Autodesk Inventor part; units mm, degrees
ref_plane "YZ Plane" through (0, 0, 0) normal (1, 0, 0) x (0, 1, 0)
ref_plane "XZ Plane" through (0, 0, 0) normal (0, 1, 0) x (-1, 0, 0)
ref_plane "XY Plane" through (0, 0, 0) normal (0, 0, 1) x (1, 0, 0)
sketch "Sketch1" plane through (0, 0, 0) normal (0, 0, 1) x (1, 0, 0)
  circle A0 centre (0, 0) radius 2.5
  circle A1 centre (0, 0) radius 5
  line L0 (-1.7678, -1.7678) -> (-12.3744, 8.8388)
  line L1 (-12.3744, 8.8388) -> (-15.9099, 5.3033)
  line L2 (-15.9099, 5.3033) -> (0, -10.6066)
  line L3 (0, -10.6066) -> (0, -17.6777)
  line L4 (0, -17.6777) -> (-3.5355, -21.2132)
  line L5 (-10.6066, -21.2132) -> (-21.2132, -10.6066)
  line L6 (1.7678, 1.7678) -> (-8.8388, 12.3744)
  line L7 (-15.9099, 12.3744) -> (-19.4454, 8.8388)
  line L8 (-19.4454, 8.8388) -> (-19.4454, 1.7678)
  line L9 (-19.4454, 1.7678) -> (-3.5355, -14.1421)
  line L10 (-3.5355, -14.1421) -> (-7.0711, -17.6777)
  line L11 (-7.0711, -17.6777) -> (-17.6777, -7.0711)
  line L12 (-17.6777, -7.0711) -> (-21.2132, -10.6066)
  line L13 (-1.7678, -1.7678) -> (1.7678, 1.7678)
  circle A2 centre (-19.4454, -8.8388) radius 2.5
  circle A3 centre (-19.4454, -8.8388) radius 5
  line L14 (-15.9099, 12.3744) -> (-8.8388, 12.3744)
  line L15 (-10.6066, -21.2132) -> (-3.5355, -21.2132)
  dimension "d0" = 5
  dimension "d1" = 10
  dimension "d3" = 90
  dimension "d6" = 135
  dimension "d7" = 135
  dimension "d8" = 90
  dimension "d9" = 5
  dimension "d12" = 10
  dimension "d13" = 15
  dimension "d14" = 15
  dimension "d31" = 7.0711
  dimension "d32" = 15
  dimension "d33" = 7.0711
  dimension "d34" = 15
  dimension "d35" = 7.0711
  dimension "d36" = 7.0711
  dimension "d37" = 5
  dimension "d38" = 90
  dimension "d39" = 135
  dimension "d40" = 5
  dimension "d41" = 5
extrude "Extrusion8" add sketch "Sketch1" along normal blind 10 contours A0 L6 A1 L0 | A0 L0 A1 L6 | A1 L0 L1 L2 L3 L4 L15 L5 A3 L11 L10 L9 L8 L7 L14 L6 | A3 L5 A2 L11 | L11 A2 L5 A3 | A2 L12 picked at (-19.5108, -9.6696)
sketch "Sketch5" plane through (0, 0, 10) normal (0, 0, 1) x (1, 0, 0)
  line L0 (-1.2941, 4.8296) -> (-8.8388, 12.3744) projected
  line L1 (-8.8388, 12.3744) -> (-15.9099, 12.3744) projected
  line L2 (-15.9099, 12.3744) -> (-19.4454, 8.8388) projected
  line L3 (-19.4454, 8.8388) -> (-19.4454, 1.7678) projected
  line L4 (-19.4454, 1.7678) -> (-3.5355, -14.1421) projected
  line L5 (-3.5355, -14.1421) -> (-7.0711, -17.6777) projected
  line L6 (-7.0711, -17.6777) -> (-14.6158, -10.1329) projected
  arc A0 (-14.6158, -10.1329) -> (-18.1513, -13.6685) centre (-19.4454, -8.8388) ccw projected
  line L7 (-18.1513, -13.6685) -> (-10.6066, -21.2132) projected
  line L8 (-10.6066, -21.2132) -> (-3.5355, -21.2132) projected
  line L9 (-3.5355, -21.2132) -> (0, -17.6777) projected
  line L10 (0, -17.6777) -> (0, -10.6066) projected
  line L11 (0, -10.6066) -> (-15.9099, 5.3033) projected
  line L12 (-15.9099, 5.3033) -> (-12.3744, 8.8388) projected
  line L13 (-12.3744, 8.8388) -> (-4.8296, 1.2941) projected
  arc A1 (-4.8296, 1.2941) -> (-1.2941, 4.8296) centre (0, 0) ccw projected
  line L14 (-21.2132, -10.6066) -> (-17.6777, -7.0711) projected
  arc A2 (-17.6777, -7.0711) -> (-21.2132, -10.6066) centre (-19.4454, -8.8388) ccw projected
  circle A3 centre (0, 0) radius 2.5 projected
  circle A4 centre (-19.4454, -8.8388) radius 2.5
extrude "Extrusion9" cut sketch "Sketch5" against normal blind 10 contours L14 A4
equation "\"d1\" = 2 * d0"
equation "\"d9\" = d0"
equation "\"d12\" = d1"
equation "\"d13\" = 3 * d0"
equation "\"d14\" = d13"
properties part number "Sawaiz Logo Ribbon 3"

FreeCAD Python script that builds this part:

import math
import FreeCAD as App
import Part
import Sketcher
from FreeCAD import Vector
Q = App.Units.Quantity

doc = App.newDocument("Part")
body = doc.addObject("PartDesign::Body", "Body")

# Sketch on XY plane
sketch1 = doc.addObject("Sketcher::SketchObject", "Sketch")
body.addObject(sketch1)
sketch1.AttachmentSupport = (doc.XY_Plane, [""])
sketch1.MapMode = "FlatFace"
sketch1.addGeometry([
    Part.LineSegment(Vector(-1.3, 4.8, 0), Vector(-8.8, 12.4, 0)),  # 0
    Part.LineSegment(Vector(-8.8, 12.4, 0), Vector(-15.9, 12.4, 0)),  # 1
    Part.LineSegment(Vector(-15.9, 12.4, 0), Vector(-19.4, 8.8, 0)),  # 2
    Part.LineSegment(Vector(-19.4, 8.8, 0), Vector(-19.4, 1.8, 0)),  # 3
    Part.LineSegment(Vector(-19.4, 1.8, 0), Vector(-3.5, -14.1, 0)),  # 4
    Part.LineSegment(Vector(-3.5, -14.1, 0), Vector(-7.1, -17.7, 0)),  # 5
    Part.LineSegment(Vector(-7.1, -17.7, 0), Vector(-14.6, -10.1, 0)),  # 6
    Part.ArcOfCircle(Part.Circle(Vector(-19.4, -8.8, 0), Vector(0, 0, 1), 5), math.radians(-15), math.radians(285)),  # 7
    Part.LineSegment(Vector(-18.2, -13.7, 0), Vector(-10.6, -21.2, 0)),  # 8
    Part.LineSegment(Vector(-10.6, -21.2, 0), Vector(-3.5, -21.2, 0)),  # 9
    Part.LineSegment(Vector(-3.5, -21.2, 0), Vector(0, -17.7, 0)),  # 10
    Part.LineSegment(Vector(0, -17.7, 0), Vector(0, -10.6, 0)),  # 11
    Part.LineSegment(Vector(0, -10.6, 0), Vector(-15.9, 5.3, 0)),  # 12
    Part.LineSegment(Vector(-15.9, 5.3, 0), Vector(-12.4, 8.8, 0)),  # 13
    Part.LineSegment(Vector(-12.4, 8.8, 0), Vector(-4.8, 1.3, 0)),  # 14
    Part.ArcOfCircle(Part.Circle(Vector(0, 0, 0), Vector(0, 0, 1), 5), math.radians(165), math.radians(465)),  # 15
    Part.Circle(Vector(0, 0, 0), Vector(0, 0, 1), 2.5),  # 16
    Part.ArcOfCircle(Part.Circle(Vector(-19.4, -8.8, 0), Vector(0, 0, 1), 2.5), math.radians(45), math.radians(225)),  # 17
    Part.LineSegment(Vector(-21.2, -10.6, 0), Vector(-17.7, -7.1, 0)),  # 18
], False)
sketch1.addConstraint([
    Sketcher.Constraint("Coincident", 0, 2, 1, 1),
    Sketcher.Constraint("Coincident", 1, 2, 2, 1),
    Sketcher.Constraint("Coincident", 2, 2, 3, 1),
    Sketcher.Constraint("Coincident", 3, 2, 4, 1),
    Sketcher.Constraint("Coincident", 4, 2, 5, 1),
    Sketcher.Constraint("Coincident", 5, 2, 6, 1),
    Sketcher.Constraint("Coincident", 6, 2, 7, 1),
    Sketcher.Constraint("Coincident", 7, 2, 8, 1),
    Sketcher.Constraint("Coincident", 8, 2, 9, 1),
    Sketcher.Constraint("Coincident", 9, 2, 10, 1),
    Sketcher.Constraint("Coincident", 10, 2, 11, 1),
    Sketcher.Constraint("Coincident", 11, 2, 12, 1),
    Sketcher.Constraint("Coincident", 12, 2, 13, 1),
    Sketcher.Constraint("Coincident", 13, 2, 14, 1),
    Sketcher.Constraint("Coincident", 14, 2, 15, 1),
    Sketcher.Constraint("Coincident", 15, 2, 0, 1),
    Sketcher.Constraint("Coincident", 17, 1, 18, 2),
    Sketcher.Constraint("Coincident", 18, 1, 17, 2),
    Sketcher.Constraint("Horizontal", 1),
    Sketcher.Constraint("Vertical", 3),
    Sketcher.Constraint("Horizontal", 9),
    Sketcher.Constraint("Vertical", 11),
    Sketcher.Constraint("Coincident", 15, 3, -1, 1),
    Sketcher.Constraint("Coincident", 16, 3, -1, 1),
    Sketcher.Constraint("Coincident", 17, 3, 7, 3),
    Sketcher.Constraint("Equal", 7, 15),
    Sketcher.Constraint("Equal", 16, 17),
    Sketcher.Constraint("PointOnObject", 10, 2, -2),
    Sketcher.Constraint("Perpendicular", 0, 2),
    Sketcher.Constraint("Perpendicular", 2, 4),
    Sketcher.Constraint("Perpendicular", 4, 5),
    Sketcher.Constraint("Perpendicular", 5, 6),
    Sketcher.Constraint("Parallel", 6, 8),
    Sketcher.Constraint("Perpendicular", 8, 10),
    Sketcher.Constraint("Perpendicular", 10, 12),
    Sketcher.Constraint("Perpendicular", 12, 13),
    Sketcher.Constraint("Perpendicular", 13, 14),
    Sketcher.Constraint("Perpendicular", 14, 18),
    Sketcher.Constraint("Horizontal", 5, 2, 10, 2),
    Sketcher.Constraint("Horizontal", 2, 2, 13, 2),
    Sketcher.Constraint("Horizontal", 11, 2, 18, 1),
    Sketcher.Constraint("Vertical", 17, 3, 2, 2),
    Sketcher.Constraint("Vertical", 4, 2, 9, 2),
    Sketcher.Constraint("Vertical", 1, 2, 12, 2),
    Sketcher.Constraint("Equal", 1, 9),
    Sketcher.Constraint("Equal", 9, 3),
    Sketcher.Constraint("Equal", 3, 11),
    Sketcher.Constraint("Equal", 2, 5),
    Sketcher.Constraint("Equal", 0, 6),
    Sketcher.Constraint("Equal", 6, 8),
    Sketcher.Constraint("Equal", 5, 10),
    Sketcher.Constraint("Equal", 13, 18),
    Sketcher.Constraint("Diameter", 16, 5.0),
    Sketcher.Constraint("Radius", 7, 5.0),
    Sketcher.Constraint("Angle", 0, Q("135 deg")),
    Sketcher.Constraint("DistanceX", 1, 2, 1, 1, 7.071),
    Sketcher.Constraint("Distance", 4, 22.5),
])
pad1 = doc.addObject("PartDesign::Pad", "Pad")
body.addObject(pad1)
pad1.Profile = sketch1
pad1.Length = 10

# Sketch on XY plane
sketch2 = doc.addObject("Sketcher::SketchObject", "Sketch001")
body.addObject(sketch2)
sketch2.AttachmentSupport = (doc.XY_Plane, [""])
sketch2.MapMode = "FlatFace"
sketch2.AttachmentOffset = App.Placement(Vector(0, 0, 10), App.Rotation())
sketch2.addGeometry([
    Part.LineSegment(Vector(-17.7, -7.1, 0), Vector(-21.2, -10.6, 0)),
    Part.ArcOfCircle(Part.Circle(Vector(-19.4, -8.8, 0), Vector(0, 0, 1), 2.5), math.radians(-135), math.radians(45)),
], False)
sketch2.addConstraint([
    Sketcher.Constraint("Coincident", 0, 1, 1, 2),
    Sketcher.Constraint("Coincident", 1, 1, 0, 2),
    Sketcher.Constraint("Radius", 1, 2.5),
    Sketcher.Constraint("Angle", 0, Q("-135 deg")),
    Sketcher.Constraint("DistanceY", 0, 1, -1, 1, 7.071),
    Sketcher.Constraint("DistanceX", 1, 3, -1, 1, 19.4454),
    Sketcher.Constraint("DistanceY", 1, 3, -1, 1, 8.8388),
])
pocket1 = doc.addObject("PartDesign::Pocket", "Pocket")
body.addObject(pocket1)
pocket1.Profile = sketch2
pocket1.Length = 10

doc.recompute()
